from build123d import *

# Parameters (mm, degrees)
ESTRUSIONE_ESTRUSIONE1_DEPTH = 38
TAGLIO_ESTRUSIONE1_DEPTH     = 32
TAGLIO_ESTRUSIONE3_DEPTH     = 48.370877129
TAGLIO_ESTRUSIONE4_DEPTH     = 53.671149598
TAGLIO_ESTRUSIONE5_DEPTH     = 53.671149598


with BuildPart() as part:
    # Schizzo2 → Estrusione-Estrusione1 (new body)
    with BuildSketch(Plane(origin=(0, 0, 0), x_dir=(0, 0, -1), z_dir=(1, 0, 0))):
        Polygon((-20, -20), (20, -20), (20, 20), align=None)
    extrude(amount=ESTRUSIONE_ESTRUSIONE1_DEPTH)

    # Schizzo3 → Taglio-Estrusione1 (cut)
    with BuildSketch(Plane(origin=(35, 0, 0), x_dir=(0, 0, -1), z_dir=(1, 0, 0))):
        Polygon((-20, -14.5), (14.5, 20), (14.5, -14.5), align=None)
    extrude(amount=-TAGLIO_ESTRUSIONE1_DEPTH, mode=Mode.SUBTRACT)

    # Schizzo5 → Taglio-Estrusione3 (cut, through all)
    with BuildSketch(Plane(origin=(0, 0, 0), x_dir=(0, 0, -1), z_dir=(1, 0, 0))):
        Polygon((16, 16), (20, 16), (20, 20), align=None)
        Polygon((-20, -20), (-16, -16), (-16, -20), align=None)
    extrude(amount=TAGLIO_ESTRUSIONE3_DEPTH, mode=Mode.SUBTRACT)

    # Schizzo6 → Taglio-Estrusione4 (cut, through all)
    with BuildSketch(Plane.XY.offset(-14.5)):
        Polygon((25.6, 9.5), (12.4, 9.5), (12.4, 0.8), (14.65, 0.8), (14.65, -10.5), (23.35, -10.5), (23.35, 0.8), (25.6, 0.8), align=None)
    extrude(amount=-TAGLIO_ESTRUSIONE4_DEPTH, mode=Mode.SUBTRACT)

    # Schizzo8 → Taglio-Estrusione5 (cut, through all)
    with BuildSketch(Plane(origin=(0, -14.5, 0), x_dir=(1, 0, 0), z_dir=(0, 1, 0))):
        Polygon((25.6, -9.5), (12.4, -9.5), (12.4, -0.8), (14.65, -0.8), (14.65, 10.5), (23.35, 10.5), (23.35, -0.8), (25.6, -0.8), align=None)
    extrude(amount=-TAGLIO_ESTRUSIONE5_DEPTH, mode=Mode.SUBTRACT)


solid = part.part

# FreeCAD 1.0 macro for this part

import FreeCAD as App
import Part
import Sketcher

doc = App.newDocument("Part")
params = doc.addObject("Spreadsheet::Sheet", "Params")
for row, (alias, value) in enumerate([
    ("sketch1_width", "40 mm"),
    ("pad1_length", "38 mm"),
    ("sketch2_width", "34.5 mm"),
    ("pocket1_length", "32 mm"),
    ("sketch3_width", "4 mm"),
    ("sketch4_width", "13.2 mm"),
    ("sketch4_width2", "8.7 mm"),
    ("sketch4_height", "11.3 mm"),
    ("sketch5_width", "13.2 mm"),
    ("sketch5_width2", "8.7 mm"),
    ("sketch5_height", "11.3 mm"),
], start=1):
    params.set(f"A{row}", alias)
    params.set(f"B{row}", "=" + value)
    params.setAlias(f"B{row}", alias)

body = doc.addObject("PartDesign::Body", "Body")

# Sketch on YZ plane
sketch1 = doc.addObject("Sketcher::SketchObject", "Sketch")
body.addObject(sketch1)
sketch1.AttachmentSupport = (doc.YZ_Plane, [""])
sketch1.MapMode = "FlatFace"
sketch1.addGeometry([
    Part.LineSegment(App.Vector(-20, 20, 0), App.Vector(-20, -20, 0)),
    Part.LineSegment(App.Vector(-20, -20, 0), App.Vector(20, -20, 0)),
    Part.LineSegment(App.Vector(20, -20, 0), App.Vector(-20, 20, 0)),
], False)
sketch1.addConstraint([
    Sketcher.Constraint("Coincident", 0, 2, 1, 1),
    Sketcher.Constraint("Coincident", 1, 2, 2, 1),
    Sketcher.Constraint("Coincident", 2, 2, 0, 1),
    Sketcher.Constraint("Vertical", 0),
    Sketcher.Constraint("Horizontal", 1),
    Sketcher.Constraint("Symmetric", 1, 2, 2, 2, -1, 1),
    Sketcher.Constraint("Equal", 1, 0),
    Sketcher.Constraint("DistanceX", 1, 1, 1, 2, 40.0),
])
sketch1.setExpression("Constraints[7]", "Params.sketch1_width")
pad1 = doc.addObject("PartDesign::Pad", "Pad")
body.addObject(pad1)
pad1.Profile = sketch1
pad1.setExpression("Length", "Params.pad1_length")

# Sketch on YZ plane
sketch2 = doc.addObject("Sketcher::SketchObject", "Sketch001")
body.addObject(sketch2)
sketch2.AttachmentSupport = (doc.YZ_Plane, [""])
sketch2.MapMode = "FlatFace"
sketch2.AttachmentOffset = App.Placement(App.Vector(0, 0, 35), App.Rotation())
sketch2.addGeometry([
    Part.LineSegment(App.Vector(20, -14, 0), App.Vector(-14, 20, 0)),
    Part.LineSegment(App.Vector(-14, 20, 0), App.Vector(-14, -14, 0)),
    Part.LineSegment(App.Vector(-14, -14, 0), App.Vector(20, -14, 0)),
], False)
sketch2.addConstraint([
    Sketcher.Constraint("Coincident", 0, 2, 1, 1),
    Sketcher.Constraint("Coincident", 1, 2, 2, 1),
    Sketcher.Constraint("Coincident", 2, 2, 0, 1),
    Sketcher.Constraint("Vertical", 1),
    Sketcher.Constraint("Horizontal", 2),
    Sketcher.Constraint("Equal", 2, 1),
    Sketcher.Constraint("DistanceX", 2, 1, 2, 2, 34.5),
    Sketcher.Constraint("DistanceY", -1, 1, 0, 2, 20.0),
    Sketcher.Constraint("DistanceX", -1, 1, 2, 2, 20.0),
])
sketch2.setExpression("Constraints[6]", "Params.sketch2_width")
pocket1 = doc.addObject("PartDesign::Pocket", "Pocket")
body.addObject(pocket1)
pocket1.Profile = sketch2
pocket1.setExpression("Length", "Params.pocket1_length")

# Sketch on YZ plane
sketch3 = doc.addObject("Sketcher::SketchObject", "Sketch002")
body.addObject(sketch3)
sketch3.AttachmentSupport = (doc.YZ_Plane, [""])
sketch3.MapMode = "FlatFace"
sketch3.addGeometry([
    Part.LineSegment(App.Vector(16, -16, 0), App.Vector(16, -20, 0)),  # 0
    Part.LineSegment(App.Vector(16, -20, 0), App.Vector(20, -20, 0)),  # 1
    Part.LineSegment(App.Vector(20, -20, 0), App.Vector(16, -16, 0)),  # 2
    Part.LineSegment(App.Vector(-16, 16, 0), App.Vector(-20, 20, 0)),  # 3
    Part.LineSegment(App.Vector(-20, 20, 0), App.Vector(-20, 16, 0)),  # 4
    Part.LineSegment(App.Vector(-20, 16, 0), App.Vector(-16, 16, 0)),  # 5
], False)
sketch3.addConstraint([
    Sketcher.Constraint("Coincident", 0, 2, 1, 1),
    Sketcher.Constraint("Coincident", 1, 2, 2, 1),
    Sketcher.Constraint("Coincident", 2, 2, 0, 1),
    Sketcher.Constraint("Coincident", 3, 2, 4, 1),
    Sketcher.Constraint("Coincident", 4, 2, 5, 1),
    Sketcher.Constraint("Coincident", 5, 2, 3, 1),
    Sketcher.Constraint("Vertical", 0),
    Sketcher.Constraint("Horizontal", 1),
    Sketcher.Constraint("Vertical", 4),
    Sketcher.Constraint("Horizontal", 5),
    Sketcher.Constraint("Symmetric", 1, 2, 3, 2, -1, 1),
    Sketcher.Constraint("Symmetric", 2, 2, 5, 2, -1, 1),
    Sketcher.Constraint("Equal", 5, 0),
    Sketcher.Constraint("DistanceX", 1, 1, 1, 2, 4.0),
    Sketcher.Constraint("DistanceX", -1, 1, 0, 2, 16.0),
    Sketcher.Constraint("DistanceY", 0, 2, -1, 1, 20.0),
])
sketch3.setExpression("Constraints[13]", "Params.sketch3_width")
pocket2 = doc.addObject("PartDesign::Pocket", "Pocket001")
body.addObject(pocket2)
pocket2.Profile = sketch3
pocket2.Type = "ThroughAll"
pocket2.Reversed = True

# Sketch on XY plane
sketch4 = doc.addObject("Sketcher::SketchObject", "Sketch003")
body.addObject(sketch4)
sketch4.AttachmentSupport = (doc.XY_Plane, [""])
sketch4.MapMode = "FlatFace"
sketch4.AttachmentOffset = App.Placement(App.Vector(0, 0, -14.5), App.Rotation())
sketch4.addGeometry([
    Part.LineSegment(App.Vector(25.6, 9.5, 0), App.Vector(12.4, 9.5, 0)),  # 0
    Part.LineSegment(App.Vector(12.4, 9.5, 0), App.Vector(12.4, 0.8, 0)),  # 1
    Part.LineSegment(App.Vector(12.4, 0.8, 0), App.Vector(14.7, 0.8, 0)),  # 2
    Part.LineSegment(App.Vector(14.7, 0.8, 0), App.Vector(14.7, -10.5, 0)),  # 3
    Part.LineSegment(App.Vector(14.7, -10.5, 0), App.Vector(23.4, -10.5, 0)),  # 4
    Part.LineSegment(App.Vector(23.4, -10.5, 0), App.Vector(23.4, 0.8, 0)),  # 5
    Part.LineSegment(App.Vector(23.4, 0.8, 0), App.Vector(25.6, 0.8, 0)),  # 6
    Part.LineSegment(App.Vector(25.6, 0.8, 0), App.Vector(25.6, 9.5, 0)),  # 7
], False)
sketch4.addConstraint([
    Sketcher.Constraint("Coincident", 0, 2, 1, 1),
    Sketcher.Constraint("Coincident", 1, 2, 2, 1),
    Sketcher.Constraint("Coincident", 2, 2, 3, 1),
    Sketcher.Constraint("Coincident", 3, 2, 4, 1),
    Sketcher.Constraint("Coincident", 4, 2, 5, 1),
    Sketcher.Constraint("Coincident", 5, 2, 6, 1),
    Sketcher.Constraint("Coincident", 6, 2, 7, 1),
    Sketcher.Constraint("Coincident", 7, 2, 0, 1),
    Sketcher.Constraint("Horizontal", 0),
    Sketcher.Constraint("Vertical", 1),
    Sketcher.Constraint("Horizontal", 2),
    Sketcher.Constraint("Vertical", 3),
    Sketcher.Constraint("Horizontal", 4),
    Sketcher.Constraint("Vertical", 5),
    Sketcher.Constraint("Horizontal", 6),
    Sketcher.Constraint("Vertical", 7),
    Sketcher.Constraint("Horizontal", 2, 2, 5, 2),
    Sketcher.Constraint("Equal", 2, 6),
    Sketcher.Constraint("Equal", 4, 1),
    Sketcher.Constraint("DistanceX", 0, 2, 0, 1, 13.2),
    Sketcher.Constraint("DistanceX", 4, 1, 4, 2, 8.7),
    Sketcher.Constraint("DistanceY", 3, 2, 3, 1, 11.3),
    Sketcher.Constraint("DistanceX", -1, 1, 0, 2, 12.4),
    Sketcher.Constraint("DistanceY", -1, 1, 0, 2, 9.5),
])
sketch4.setExpression("Constraints[19]", "Params.sketch4_width")
sketch4.setExpression("Constraints[20]", "Params.sketch4_width2")
sketch4.setExpression("Constraints[21]", "Params.sketch4_height")
pocket3 = doc.addObject("PartDesign::Pocket", "Pocket002")
body.addObject(pocket3)
pocket3.Profile = sketch4
pocket3.Type = "ThroughAll"

# Sketch on XZ plane
sketch5 = doc.addObject("Sketcher::SketchObject", "Sketch004")
body.addObject(sketch5)
sketch5.AttachmentSupport = (doc.XZ_Plane, [""])
sketch5.MapMode = "FlatFace"
sketch5.AttachmentOffset = App.Placement(App.Vector(0, 0, 14.5), App.Rotation())
sketch5.addGeometry([
    Part.LineSegment(App.Vector(12.4, 9.5, 0), App.Vector(25.6, 9.5, 0)),  # 0
    Part.LineSegment(App.Vector(25.6, 9.5, 0), App.Vector(25.6, 0.8, 0)),  # 1
    Part.LineSegment(App.Vector(25.6, 0.8, 0), App.Vector(23.4, 0.8, 0)),  # 2
    Part.LineSegment(App.Vector(23.4, 0.8, 0), App.Vector(23.4, -10.5, 0)),  # 3
    Part.LineSegment(App.Vector(23.4, -10.5, 0), App.Vector(14.7, -10.5, 0)),  # 4
    Part.LineSegment(App.Vector(14.7, -10.5, 0), App.Vector(14.7, 0.8, 0)),  # 5
    Part.LineSegment(App.Vector(14.7, 0.8, 0), App.Vector(12.4, 0.8, 0)),  # 6
    Part.LineSegment(App.Vector(12.4, 0.8, 0), App.Vector(12.4, 9.5, 0)),  # 7
], False)
sketch5.addConstraint([
    Sketcher.Constraint("Coincident", 0, 2, 1, 1),
    Sketcher.Constraint("Coincident", 1, 2, 2, 1),
    Sketcher.Constraint("Coincident", 2, 2, 3, 1),
    Sketcher.Constraint("Coincident", 3, 2, 4, 1),
    Sketcher.Constraint("Coincident", 4, 2, 5, 1),
    Sketcher.Constraint("Coincident", 5, 2, 6, 1),
    Sketcher.Constraint("Coincident", 6, 2, 7, 1),
    Sketcher.Constraint("Coincident", 7, 2, 0, 1),
    Sketcher.Constraint("Horizontal", 0),
    Sketcher.Constraint("Vertical", 1),
    Sketcher.Constraint("Horizontal", 2),
    Sketcher.Constraint("Vertical", 3),
    Sketcher.Constraint("Horizontal", 4),
    Sketcher.Constraint("Vertical", 5),
    Sketcher.Constraint("Horizontal", 6),
    Sketcher.Constraint("Vertical", 7),
    Sketcher.Constraint("Horizontal", 2, 2, 5, 2),
    Sketcher.Constraint("Equal", 2, 6),
    Sketcher.Constraint("Equal", 4, 1),
    Sketcher.Constraint("DistanceX", 0, 1, 0, 2, 13.2),
    Sketcher.Constraint("DistanceX", 4, 2, 4, 1, 8.7),
    Sketcher.Constraint("DistanceY", 3, 2, 3, 1, 11.3),
    Sketcher.Constraint("DistanceX", -1, 1, 0, 2, 25.6),
    Sketcher.Constraint("DistanceY", -1, 1, 0, 2, 9.5),
])
sketch5.setExpression("Constraints[19]", "Params.sketch5_width")
sketch5.setExpression("Constraints[20]", "Params.sketch5_width2")
sketch5.setExpression("Constraints[21]", "Params.sketch5_height")
pocket4 = doc.addObject("PartDesign::Pocket", "Pocket003")
body.addObject(pocket4)
pocket4.Profile = sketch5
pocket4.Type = "ThroughAll"
pocket4.Reversed = True

doc.recompute()
